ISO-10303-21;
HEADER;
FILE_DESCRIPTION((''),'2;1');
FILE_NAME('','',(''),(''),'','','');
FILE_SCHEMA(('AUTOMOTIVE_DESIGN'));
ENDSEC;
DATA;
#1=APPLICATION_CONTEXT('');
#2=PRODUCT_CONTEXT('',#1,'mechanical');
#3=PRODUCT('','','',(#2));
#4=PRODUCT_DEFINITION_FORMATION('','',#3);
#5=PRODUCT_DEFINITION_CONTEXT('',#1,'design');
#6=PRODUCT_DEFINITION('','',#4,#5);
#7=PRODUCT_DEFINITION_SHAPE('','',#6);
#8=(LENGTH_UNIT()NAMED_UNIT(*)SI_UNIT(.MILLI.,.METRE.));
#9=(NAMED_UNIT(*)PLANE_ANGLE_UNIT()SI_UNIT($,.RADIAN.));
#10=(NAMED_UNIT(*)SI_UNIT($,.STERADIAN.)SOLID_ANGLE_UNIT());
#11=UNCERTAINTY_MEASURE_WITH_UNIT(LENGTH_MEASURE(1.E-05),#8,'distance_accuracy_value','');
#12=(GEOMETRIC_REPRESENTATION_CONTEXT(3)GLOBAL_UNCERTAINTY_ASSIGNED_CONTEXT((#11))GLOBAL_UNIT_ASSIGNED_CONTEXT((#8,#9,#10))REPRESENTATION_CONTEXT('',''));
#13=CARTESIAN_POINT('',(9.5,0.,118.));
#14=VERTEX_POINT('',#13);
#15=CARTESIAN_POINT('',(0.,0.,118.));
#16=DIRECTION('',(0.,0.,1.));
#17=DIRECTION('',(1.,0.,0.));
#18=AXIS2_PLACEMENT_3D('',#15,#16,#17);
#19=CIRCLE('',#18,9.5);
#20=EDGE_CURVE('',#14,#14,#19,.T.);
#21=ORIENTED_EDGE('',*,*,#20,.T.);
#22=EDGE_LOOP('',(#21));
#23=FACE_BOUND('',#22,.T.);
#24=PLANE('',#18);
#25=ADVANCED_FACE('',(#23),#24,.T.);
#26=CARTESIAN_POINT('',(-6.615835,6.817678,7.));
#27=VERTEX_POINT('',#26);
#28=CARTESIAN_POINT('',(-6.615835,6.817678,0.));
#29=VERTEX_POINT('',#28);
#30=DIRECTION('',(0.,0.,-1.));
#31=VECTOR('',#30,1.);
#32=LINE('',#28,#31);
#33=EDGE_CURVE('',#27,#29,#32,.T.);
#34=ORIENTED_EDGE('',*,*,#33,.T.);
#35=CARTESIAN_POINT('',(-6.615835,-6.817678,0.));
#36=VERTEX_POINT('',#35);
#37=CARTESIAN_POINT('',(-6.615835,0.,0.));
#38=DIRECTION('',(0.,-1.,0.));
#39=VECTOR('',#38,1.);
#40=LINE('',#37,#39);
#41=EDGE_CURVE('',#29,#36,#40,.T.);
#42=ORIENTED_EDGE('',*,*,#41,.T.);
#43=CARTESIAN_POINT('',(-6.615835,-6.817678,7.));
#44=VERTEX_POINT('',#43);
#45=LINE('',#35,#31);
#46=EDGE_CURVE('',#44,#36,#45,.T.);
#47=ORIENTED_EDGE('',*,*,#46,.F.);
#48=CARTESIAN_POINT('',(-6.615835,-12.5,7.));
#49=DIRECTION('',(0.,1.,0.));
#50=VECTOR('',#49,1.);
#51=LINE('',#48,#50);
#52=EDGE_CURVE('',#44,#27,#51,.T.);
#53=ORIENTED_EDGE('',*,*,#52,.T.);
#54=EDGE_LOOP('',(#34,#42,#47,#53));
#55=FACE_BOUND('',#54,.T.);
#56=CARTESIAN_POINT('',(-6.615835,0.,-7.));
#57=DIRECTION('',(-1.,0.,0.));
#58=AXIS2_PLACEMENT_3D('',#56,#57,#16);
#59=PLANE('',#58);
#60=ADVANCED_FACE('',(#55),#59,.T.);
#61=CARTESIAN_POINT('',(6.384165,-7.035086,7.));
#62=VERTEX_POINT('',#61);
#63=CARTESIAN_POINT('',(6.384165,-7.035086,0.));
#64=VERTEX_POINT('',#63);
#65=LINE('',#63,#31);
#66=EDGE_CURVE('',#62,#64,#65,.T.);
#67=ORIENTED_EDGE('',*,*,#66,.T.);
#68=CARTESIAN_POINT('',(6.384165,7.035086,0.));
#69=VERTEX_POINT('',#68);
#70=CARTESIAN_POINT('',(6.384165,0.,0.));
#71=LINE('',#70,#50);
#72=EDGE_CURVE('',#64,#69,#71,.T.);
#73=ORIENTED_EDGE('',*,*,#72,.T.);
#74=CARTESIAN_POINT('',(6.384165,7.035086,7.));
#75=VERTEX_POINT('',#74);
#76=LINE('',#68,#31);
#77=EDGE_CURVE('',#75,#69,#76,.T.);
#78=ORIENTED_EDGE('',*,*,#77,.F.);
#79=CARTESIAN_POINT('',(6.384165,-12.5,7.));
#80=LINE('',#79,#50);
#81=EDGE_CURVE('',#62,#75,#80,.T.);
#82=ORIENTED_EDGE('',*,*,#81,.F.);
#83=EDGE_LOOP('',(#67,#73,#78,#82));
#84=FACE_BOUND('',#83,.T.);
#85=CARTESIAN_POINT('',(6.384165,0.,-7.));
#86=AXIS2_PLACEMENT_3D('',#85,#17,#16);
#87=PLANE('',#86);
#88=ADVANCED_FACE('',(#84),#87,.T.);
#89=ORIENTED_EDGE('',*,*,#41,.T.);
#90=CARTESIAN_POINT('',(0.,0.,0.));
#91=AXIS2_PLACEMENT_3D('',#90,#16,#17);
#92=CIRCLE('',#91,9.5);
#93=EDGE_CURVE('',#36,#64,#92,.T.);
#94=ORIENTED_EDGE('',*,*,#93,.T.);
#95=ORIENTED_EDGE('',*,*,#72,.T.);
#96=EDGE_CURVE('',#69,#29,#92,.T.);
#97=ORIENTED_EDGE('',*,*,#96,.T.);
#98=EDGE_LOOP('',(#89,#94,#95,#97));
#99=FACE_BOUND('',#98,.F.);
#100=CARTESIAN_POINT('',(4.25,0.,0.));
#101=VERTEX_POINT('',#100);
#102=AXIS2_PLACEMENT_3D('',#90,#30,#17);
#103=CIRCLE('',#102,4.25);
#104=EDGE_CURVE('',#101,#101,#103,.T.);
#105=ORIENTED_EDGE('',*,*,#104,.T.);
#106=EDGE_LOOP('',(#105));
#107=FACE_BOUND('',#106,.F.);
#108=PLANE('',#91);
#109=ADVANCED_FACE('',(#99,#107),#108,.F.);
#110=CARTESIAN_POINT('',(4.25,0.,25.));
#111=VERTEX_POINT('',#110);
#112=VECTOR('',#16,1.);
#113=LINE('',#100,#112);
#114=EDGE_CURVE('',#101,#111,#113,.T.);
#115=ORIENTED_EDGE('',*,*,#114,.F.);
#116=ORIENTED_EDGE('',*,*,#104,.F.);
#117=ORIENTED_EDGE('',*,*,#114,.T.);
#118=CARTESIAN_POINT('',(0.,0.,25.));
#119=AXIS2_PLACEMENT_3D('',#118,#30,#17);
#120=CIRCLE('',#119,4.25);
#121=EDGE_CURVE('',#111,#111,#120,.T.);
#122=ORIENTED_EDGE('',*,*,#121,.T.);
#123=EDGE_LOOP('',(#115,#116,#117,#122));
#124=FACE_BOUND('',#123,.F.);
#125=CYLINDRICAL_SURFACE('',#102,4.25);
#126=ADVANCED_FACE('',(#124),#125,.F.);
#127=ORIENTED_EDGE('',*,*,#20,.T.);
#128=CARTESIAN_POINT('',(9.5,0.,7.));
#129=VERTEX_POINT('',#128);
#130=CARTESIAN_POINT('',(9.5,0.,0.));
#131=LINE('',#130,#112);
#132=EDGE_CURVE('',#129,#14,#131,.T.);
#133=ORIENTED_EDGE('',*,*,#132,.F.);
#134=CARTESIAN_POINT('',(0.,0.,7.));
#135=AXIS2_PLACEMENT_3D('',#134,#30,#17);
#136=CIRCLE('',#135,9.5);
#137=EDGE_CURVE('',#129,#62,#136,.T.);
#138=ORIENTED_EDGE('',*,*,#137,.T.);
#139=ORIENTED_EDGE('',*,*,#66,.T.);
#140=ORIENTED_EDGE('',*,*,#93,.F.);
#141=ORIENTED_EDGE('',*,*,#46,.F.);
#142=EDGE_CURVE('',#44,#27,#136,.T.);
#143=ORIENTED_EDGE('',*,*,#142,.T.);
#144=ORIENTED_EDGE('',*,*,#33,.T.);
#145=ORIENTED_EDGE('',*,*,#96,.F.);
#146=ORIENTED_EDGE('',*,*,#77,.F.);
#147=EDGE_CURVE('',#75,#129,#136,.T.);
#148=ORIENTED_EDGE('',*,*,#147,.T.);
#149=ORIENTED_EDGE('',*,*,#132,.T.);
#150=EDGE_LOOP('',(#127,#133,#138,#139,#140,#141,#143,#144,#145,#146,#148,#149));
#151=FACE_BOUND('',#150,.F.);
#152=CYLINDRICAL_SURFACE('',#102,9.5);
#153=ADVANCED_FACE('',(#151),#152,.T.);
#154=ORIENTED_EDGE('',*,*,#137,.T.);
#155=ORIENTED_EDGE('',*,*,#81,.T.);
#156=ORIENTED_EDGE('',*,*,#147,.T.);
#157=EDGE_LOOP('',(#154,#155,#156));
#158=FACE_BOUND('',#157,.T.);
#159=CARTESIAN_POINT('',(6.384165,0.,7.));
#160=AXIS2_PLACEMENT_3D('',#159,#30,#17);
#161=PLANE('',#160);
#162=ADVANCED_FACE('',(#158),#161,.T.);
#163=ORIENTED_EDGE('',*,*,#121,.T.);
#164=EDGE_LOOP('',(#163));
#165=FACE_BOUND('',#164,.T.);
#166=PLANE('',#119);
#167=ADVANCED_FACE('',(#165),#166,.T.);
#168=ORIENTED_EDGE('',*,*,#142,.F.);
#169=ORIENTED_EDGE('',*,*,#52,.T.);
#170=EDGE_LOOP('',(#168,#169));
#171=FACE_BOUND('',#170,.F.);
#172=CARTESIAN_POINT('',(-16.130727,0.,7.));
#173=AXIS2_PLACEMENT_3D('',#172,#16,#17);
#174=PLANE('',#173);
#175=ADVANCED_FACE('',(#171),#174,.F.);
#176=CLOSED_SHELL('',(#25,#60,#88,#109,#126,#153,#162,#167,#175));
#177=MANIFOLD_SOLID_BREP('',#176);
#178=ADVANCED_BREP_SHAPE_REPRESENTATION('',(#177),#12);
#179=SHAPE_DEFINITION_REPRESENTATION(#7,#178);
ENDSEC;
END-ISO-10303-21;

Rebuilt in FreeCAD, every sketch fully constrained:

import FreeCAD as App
import Part
import Sketcher

V = App.Vector
Q = App.Units.Quantity


def add_polygon(sketch, points):
    """Adds a closed chain of lines whose ends are joined by coincident constraints."""
    first, n = sketch.GeometryCount, len(points)
    for a, b in zip(points, points[1:] + points[:1]):
        sketch.addGeometry(Part.LineSegment(App.Vector(*a, 0), App.Vector(*b, 0)), False)
    for i in range(n):
        sketch.addConstraint(Sketcher.Constraint("Coincident", first + i, 2, first + (i + 1) % n, 1))

doc = App.newDocument("Part")
body = doc.addObject("PartDesign::Body", "Body")

# Sketch on XY plane
sketch1 = body.newObject("Sketcher::SketchObject", "Sketch")
sketch1.AttachmentSupport = (doc.getObject("XY_Plane"), [""])
sketch1.MapMode = "FlatFace"
sketch1.addGeometry(Part.Circle(V(0, 0, 0), V(0, 0, 1), 9.5), False)
sketch1.addConstraint(Sketcher.Constraint("Coincident", 0, 3, -1, 1))
sketch1.addConstraint(Sketcher.Constraint("Diameter", 0, Q("19 mm")))
pad1 = body.newObject("PartDesign::Pad", "Pad")
pad1.Profile = sketch1
pad1.Length = 118

# Sketch on XZ plane
sketch2 = body.newObject("Sketcher::SketchObject", "Sketch001")
sketch2.AttachmentSupport = (doc.getObject("XZ_Plane"), [""])
sketch2.MapMode = "FlatFace"
add_polygon(sketch2, [(-16.130727, 7), (-16.130727, -7), (-6.615835, -7), (-6.615835, 7)])  # lines 0-3
add_polygon(sketch2, [(6.384165, 7), (6.384165, -7), (16.655967, -7), (16.655967, 7)])  # lines 4-7
sketch2.addConstraint(Sketcher.Constraint("Vertical", 0))
sketch2.addConstraint(Sketcher.Constraint("Horizontal", 1))
sketch2.addConstraint(Sketcher.Constraint("Vertical", 2))
sketch2.addConstraint(Sketcher.Constraint("Horizontal", 3))
sketch2.addConstraint(Sketcher.Constraint("Vertical", 4))
sketch2.addConstraint(Sketcher.Constraint("Horizontal", 5))
sketch2.addConstraint(Sketcher.Constraint("Vertical", 6))
sketch2.addConstraint(Sketcher.Constraint("Horizontal", 7))
sketch2.addConstraint(Sketcher.Constraint("Horizontal", 1, 2, 4, 2))
sketch2.addConstraint(Sketcher.Constraint("Horizontal", 3, 2, 6, 2))
sketch2.addConstraint(Sketcher.Constraint("DistanceY", 0, 2, 0, 1, Q("14 mm")))
sketch2.addConstraint(Sketcher.Constraint("DistanceY", 0, 2, -1, 1, Q("7 mm")))
sketch2.addConstraint(Sketcher.Constraint("DistanceX", 1, 2, 4, 2, Q("13 mm")))
sketch2.addConstraint(Sketcher.Constraint("DistanceX", 1, 2, 5, 2, Q("23.271802 mm")))
sketch2.addConstraint(Sketcher.Constraint("DistanceX", 1, 1, 1, 2, Q("9.514893 mm")))
sketch2.addConstraint(Sketcher.Constraint("DistanceX", 0, 2, -1, 1, Q("16.130727 mm")))
pocket1 = body.newObject("PartDesign::Pocket", "Pocket")
pocket1.Profile = sketch2
pocket1.Length = 25
pocket1.Midplane = True

# Sketch on XY plane
sketch3 = body.newObject("Sketcher::SketchObject", "Sketch002")
sketch3.AttachmentSupport = (doc.getObject("XY_Plane"), [""])
sketch3.MapMode = "FlatFace"
sketch3.addGeometry(Part.Circle(V(0, 0, 0), V(0, 0, 1), 4.25), False)
sketch3.addConstraint(Sketcher.Constraint("Coincident", 0, 3, -1, 1))
sketch3.addConstraint(Sketcher.Constraint("Diameter", 0, Q("8.5 mm")))
pocket2 = body.newObject("PartDesign::Pocket", "Pocket001")
pocket2.Profile = sketch3
pocket2.Length = 25
pocket2.Reversed = True

doc.recompute()
